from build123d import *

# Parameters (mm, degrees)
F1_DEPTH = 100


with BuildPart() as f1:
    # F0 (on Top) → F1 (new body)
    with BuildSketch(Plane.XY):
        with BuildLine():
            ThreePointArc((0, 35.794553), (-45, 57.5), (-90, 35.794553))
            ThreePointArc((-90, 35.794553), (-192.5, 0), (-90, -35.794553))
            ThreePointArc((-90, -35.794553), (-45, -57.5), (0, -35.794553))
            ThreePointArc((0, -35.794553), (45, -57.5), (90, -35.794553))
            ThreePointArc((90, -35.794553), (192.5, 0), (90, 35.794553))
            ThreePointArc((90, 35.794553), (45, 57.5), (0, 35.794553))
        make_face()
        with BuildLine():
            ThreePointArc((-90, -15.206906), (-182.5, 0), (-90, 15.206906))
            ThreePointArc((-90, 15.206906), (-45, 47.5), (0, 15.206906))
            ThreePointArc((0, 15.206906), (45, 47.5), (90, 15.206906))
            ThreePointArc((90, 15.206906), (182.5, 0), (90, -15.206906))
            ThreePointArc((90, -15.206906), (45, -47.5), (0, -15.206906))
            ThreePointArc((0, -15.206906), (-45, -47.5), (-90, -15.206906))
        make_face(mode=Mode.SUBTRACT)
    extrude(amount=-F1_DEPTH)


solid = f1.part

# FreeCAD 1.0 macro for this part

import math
import FreeCAD as App
import Part
import Sketcher
from FreeCAD import Vector

doc = App.newDocument("Part")
body = doc.addObject("PartDesign::Body", "Body")

# Sketch on XY plane
sketch1 = doc.addObject("Sketcher::SketchObject", "Sketch")
body.addObject(sketch1)
sketch1.AttachmentSupport = (doc.XY_Plane, [""])
sketch1.MapMode = "FlatFace"
sketch1.addGeometry(Part.ArcOfCircle(Part.Circle(Vector(-45, 0, 0), Vector(0, 0, 1), 58), math.radians(38), math.radians(142)), False)
sketch1.addGeometry(Part.ArcOfCircle(Part.Circle(Vector(-135, 0, 0), Vector(0, 0, 1), 58), math.radians(38), math.radians(322)), False)
sketch1.addGeometry(Part.ArcOfCircle(Part.Circle(Vector(-45, 0, 0), Vector(0, 0, 1), 58), math.radians(-142), math.radians(-38)), False)
sketch1.addGeometry(Part.ArcOfCircle(Part.Circle(Vector(45, 0, 0), Vector(0, 0, 1), 58), math.radians(-142), math.radians(-38)), False)
sketch1.addGeometry(Part.ArcOfCircle(Part.Circle(Vector(135, 0, 0), Vector(0, 0, 1), 58), math.radians(-142), math.radians(142)), False)
sketch1.addGeometry(Part.ArcOfCircle(Part.Circle(Vector(45, 0, 0), Vector(0, 0, 1), 58), math.radians(38), math.radians(142)), False)
sketch1.addGeometry(Part.ArcOfCircle(Part.Circle(Vector(-45, 0, 0), Vector(0, 0, 1), 47), math.radians(-161), math.radians(-19)), False)
sketch1.addGeometry(Part.ArcOfCircle(Part.Circle(Vector(-135, 0, 0), Vector(0, 0, 1), 47), math.radians(19), math.radians(341)), False)
sketch1.addGeometry(Part.ArcOfCircle(Part.Circle(Vector(-45, 0, 0), Vector(0, 0, 1), 47), math.radians(19), math.radians(161)), False)
sketch1.addGeometry(Part.ArcOfCircle(Part.Circle(Vector(45, 0, 0), Vector(0, 0, 1), 47), math.radians(19), math.radians(161)), False)
sketch1.addGeometry(Part.ArcOfCircle(Part.Circle(Vector(135, 0, 0), Vector(0, 0, 1), 47), math.radians(-161), math.radians(161)), False)
sketch1.addGeometry(Part.ArcOfCircle(Part.Circle(Vector(45, 0, 0), Vector(0, 0, 1), 47), math.radians(-161), math.radians(-19)), False)
sketch1.addConstraint(Sketcher.Constraint("Coincident", 0, 2, 1, 1))
sketch1.addConstraint(Sketcher.Constraint("Coincident", 1, 2, 2, 1))
sketch1.addConstraint(Sketcher.Constraint("Coincident", 2, 2, 3, 1))
sketch1.addConstraint(Sketcher.Constraint("Coincident", 3, 2, 4, 1))
sketch1.addConstraint(Sketcher.Constraint("Coincident", 4, 2, 5, 1))
sketch1.addConstraint(Sketcher.Constraint("Coincident", 5, 2, 0, 1))
sketch1.addConstraint(Sketcher.Constraint("Coincident", 6, 1, 7, 2))
sketch1.addConstraint(Sketcher.Constraint("Coincident", 7, 1, 8, 2))
sketch1.addConstraint(Sketcher.Constraint("Coincident", 8, 1, 9, 2))
sketch1.addConstraint(Sketcher.Constraint("Coincident", 9, 1, 10, 2))
sketch1.addConstraint(Sketcher.Constraint("Coincident", 10, 1, 11, 2))
sketch1.addConstraint(Sketcher.Constraint("Coincident", 11, 1, 6, 2))
sketch1.addConstraint(Sketcher.Constraint("Coincident", 2, 3, 0, 3))
sketch1.addConstraint(Sketcher.Constraint("Coincident", 5, 3, 3, 3))
sketch1.addConstraint(Sketcher.Constraint("Coincident", 6, 3, 0, 3))
sketch1.addConstraint(Sketcher.Constraint("Coincident", 7, 3, 1, 3))
sketch1.addConstraint(Sketcher.Constraint("Coincident", 8, 3, 0, 3))
sketch1.addConstraint(Sketcher.Constraint("Coincident", 9, 3, 3, 3))
sketch1.addConstraint(Sketcher.Constraint("Coincident", 10, 3, 4, 3))
sketch1.addConstraint(Sketcher.Constraint("Coincident", 11, 3, 3, 3))
sketch1.addConstraint(Sketcher.Constraint("Equal", 0, 1))
sketch1.addConstraint(Sketcher.Constraint("Equal", 1, 2))
sketch1.addConstraint(Sketcher.Constraint("Equal", 2, 3))
sketch1.addConstraint(Sketcher.Constraint("Equal", 3, 4))
sketch1.addConstraint(Sketcher.Constraint("Equal", 4, 5))
sketch1.addConstraint(Sketcher.Constraint("Equal", 6, 7))
sketch1.addConstraint(Sketcher.Constraint("Equal", 7, 8))
sketch1.addConstraint(Sketcher.Constraint("Equal", 8, 9))
sketch1.addConstraint(Sketcher.Constraint("Equal", 9, 10))
sketch1.addConstraint(Sketcher.Constraint("Equal", 10, 11))
sketch1.addConstraint(Sketcher.Constraint("Symmetric", 0, 3, 3, 3, -1, 1))
sketch1.addConstraint(Sketcher.Constraint("Symmetric", 1, 3, 4, 3, -1, 1))
sketch1.addConstraint(Sketcher.Constraint("Symmetric", 1, 2, 3, 2, -2))
sketch1.addConstraint(Sketcher.Constraint("Horizontal", 1, 2, 2, 2))
sketch1.addConstraint(Sketcher.Constraint("Radius", 0, 57.500001))
sketch1.addConstraint(Sketcher.Constraint("Radius", 6, 47.5))
sketch1.addConstraint(Sketcher.Constraint("DistanceX", 0, 3, -1, 1, 45.0))
pad1 = doc.addObject("PartDesign::Pad", "Pad")
body.addObject(pad1)
pad1.Profile = sketch1
pad1.Length = 100
pad1.Reversed = True

doc.recompute()
